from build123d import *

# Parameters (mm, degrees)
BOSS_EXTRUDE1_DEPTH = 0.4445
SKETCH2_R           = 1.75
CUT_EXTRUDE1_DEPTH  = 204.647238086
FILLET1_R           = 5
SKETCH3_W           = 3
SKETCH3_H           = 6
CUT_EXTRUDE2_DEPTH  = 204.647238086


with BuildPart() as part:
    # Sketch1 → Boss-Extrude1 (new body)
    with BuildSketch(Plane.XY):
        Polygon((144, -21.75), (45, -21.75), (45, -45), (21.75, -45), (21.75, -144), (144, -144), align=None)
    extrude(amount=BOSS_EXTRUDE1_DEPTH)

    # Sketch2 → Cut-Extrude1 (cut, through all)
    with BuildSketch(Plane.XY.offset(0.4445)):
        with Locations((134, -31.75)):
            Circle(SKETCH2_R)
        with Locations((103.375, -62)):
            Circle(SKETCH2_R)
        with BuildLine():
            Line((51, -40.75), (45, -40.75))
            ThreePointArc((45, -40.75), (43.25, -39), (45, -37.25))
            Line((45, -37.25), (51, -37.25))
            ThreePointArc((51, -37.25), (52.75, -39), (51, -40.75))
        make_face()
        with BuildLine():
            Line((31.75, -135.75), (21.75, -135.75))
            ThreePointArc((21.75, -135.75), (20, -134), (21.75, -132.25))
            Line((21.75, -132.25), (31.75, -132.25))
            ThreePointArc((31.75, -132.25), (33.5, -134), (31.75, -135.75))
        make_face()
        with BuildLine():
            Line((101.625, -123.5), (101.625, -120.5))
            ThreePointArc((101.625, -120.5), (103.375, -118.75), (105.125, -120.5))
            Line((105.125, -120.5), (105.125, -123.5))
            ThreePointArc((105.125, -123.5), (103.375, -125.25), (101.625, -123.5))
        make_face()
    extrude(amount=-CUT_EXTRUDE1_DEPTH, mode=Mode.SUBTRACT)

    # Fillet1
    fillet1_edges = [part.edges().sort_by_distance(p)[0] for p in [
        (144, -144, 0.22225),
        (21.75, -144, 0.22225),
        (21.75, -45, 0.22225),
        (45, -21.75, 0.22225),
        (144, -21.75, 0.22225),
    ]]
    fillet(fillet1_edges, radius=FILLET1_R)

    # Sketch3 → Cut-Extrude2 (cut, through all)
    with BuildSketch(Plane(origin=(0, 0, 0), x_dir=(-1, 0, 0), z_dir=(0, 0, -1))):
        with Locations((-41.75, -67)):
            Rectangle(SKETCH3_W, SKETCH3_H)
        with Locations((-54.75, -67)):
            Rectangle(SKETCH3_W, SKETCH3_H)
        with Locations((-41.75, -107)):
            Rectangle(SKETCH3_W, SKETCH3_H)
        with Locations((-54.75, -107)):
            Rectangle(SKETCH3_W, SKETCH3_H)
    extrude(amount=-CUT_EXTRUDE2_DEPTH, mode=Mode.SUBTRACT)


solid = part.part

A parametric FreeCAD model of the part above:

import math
import FreeCAD as App
import Part
import Sketcher
from FreeCAD import Vector


def edges_at(feature, points):
    """Names of the edges that pass closest to the given points."""
    edges = feature.Shape.Edges
    near = lambda p: min(range(len(edges)), key=lambda i: edges[i].distToShape(Part.Vertex(*p))[0])
    return sorted({f"Edge{near(p) + 1}" for p in points})


def add_polygon(sketch, points):
    """Adds a closed chain of lines whose ends are joined by coincident constraints."""
    first, n = sketch.GeometryCount, len(points)
    for a, b in zip(points, points[1:] + points[:1]):
        sketch.addGeometry(Part.LineSegment(App.Vector(*a, 0), App.Vector(*b, 0)), False)
    for i in range(n):
        sketch.addConstraint(Sketcher.Constraint("Coincident", first + i, 2, first + (i + 1) % n, 1))

doc = App.newDocument("Part")
body = doc.addObject("PartDesign::Body", "Body")

# Sketch on XY plane
sketch1 = body.newObject("Sketcher::SketchObject", "Sketch")
sketch1.AttachmentSupport = (doc.getObject("XY_Plane"), [""])
sketch1.MapMode = "FlatFace"
add_polygon(sketch1, [(144, -22), (45, -22), (45, -45), (22, -45), (22, -144), (144, -144)])  # lines 0-5
sketch1.addConstraint([
    Sketcher.Constraint("Horizontal", 0),
    Sketcher.Constraint("Vertical", 1),
    Sketcher.Constraint("Horizontal", 2),
    Sketcher.Constraint("Vertical", 3),
    Sketcher.Constraint("Horizontal", 4),
    Sketcher.Constraint("Vertical", 5),
    Sketcher.Constraint("Equal", 2, 1),
    Sketcher.Constraint("Equal", 0, 3),
    Sketcher.Constraint("DistanceX", 0, 2, 0, 1, 99.0),
    Sketcher.Constraint("DistanceX", -1, 1, 0, 2, 45.0),
    Sketcher.Constraint("DistanceY", 1, 2, -1, 1, 45.0),
    Sketcher.Constraint("DistanceX", 2, 2, 2, 1, 23.25),
])
pad1 = body.newObject("PartDesign::Pad", "Pad")
pad1.Profile = sketch1
pad1.Length = 0.4445

# Sketch on XY plane
sketch2 = body.newObject("Sketcher::SketchObject", "Sketch001")
sketch2.AttachmentSupport = (doc.getObject("XY_Plane"), [""])
sketch2.MapMode = "FlatFace"
sketch2.AttachmentOffset = App.Placement(Vector(0, 0, 0.4445), App.Rotation())
sketch2.addGeometry([
    Part.Circle(Vector(134, -31.8, 0), Vector(0, 0, 1), 1.8),  # 0
    Part.Circle(Vector(103.4, -62, 0), Vector(0, 0, 1), 1.8),  # 1
    Part.LineSegment(Vector(45, -40.8, 0), Vector(51, -40.8, 0)),  # 2
    Part.ArcOfCircle(Part.Circle(Vector(51, -39, 0), Vector(0, 0, 1), 1.8), math.radians(-90), math.radians(90)),  # 3
    Part.LineSegment(Vector(51, -37.2, 0), Vector(45, -37.2, 0)),  # 4
    Part.ArcOfCircle(Part.Circle(Vector(45, -39, 0), Vector(0, 0, 1), 1.8), math.radians(90), math.radians(270)),  # 5
    Part.LineSegment(Vector(21.8, -135.8, 0), Vector(31.8, -135.8, 0)),  # 6
    Part.ArcOfCircle(Part.Circle(Vector(31.8, -134, 0), Vector(0, 0, 1), 1.8), math.radians(-90), math.radians(90)),  # 7
    Part.LineSegment(Vector(31.8, -132.2, 0), Vector(21.8, -132.2, 0)),  # 8
    Part.ArcOfCircle(Part.Circle(Vector(21.8, -134, 0), Vector(0, 0, 1), 1.8), math.radians(90), math.radians(270)),  # 9
    Part.LineSegment(Vector(101.6, -120.5, 0), Vector(101.6, -123.5, 0)),  # 10
    Part.ArcOfCircle(Part.Circle(Vector(103.4, -123.5, 0), Vector(0, 0, 1), 1.8), math.radians(180), math.radians(360)),  # 11
    Part.LineSegment(Vector(105.1, -123.5, 0), Vector(105.1, -120.5, 0)),  # 12
    Part.ArcOfCircle(Part.Circle(Vector(103.4, -120.5, 0), Vector(0, 0, 1), 1.8), math.radians(0), math.radians(180)),  # 13
], False)
sketch2.addConstraint([
    Sketcher.Constraint("Tangent", 2, 2, 3, 1),
    Sketcher.Constraint("Tangent", 3, 2, 4, 1),
    Sketcher.Constraint("Tangent", 4, 2, 5, 1),
    Sketcher.Constraint("Tangent", 5, 2, 2, 1),
    Sketcher.Constraint("Tangent", 6, 2, 7, 1),
    Sketcher.Constraint("Tangent", 7, 2, 8, 1),
    Sketcher.Constraint("Tangent", 8, 2, 9, 1),
    Sketcher.Constraint("Tangent", 9, 2, 6, 1),
    Sketcher.Constraint("Tangent", 10, 2, 11, 1),
    Sketcher.Constraint("Tangent", 11, 2, 12, 1),
    Sketcher.Constraint("Tangent", 12, 2, 13, 1),
    Sketcher.Constraint("Tangent", 13, 2, 10, 1),
    Sketcher.Constraint("Horizontal", 2),
    Sketcher.Constraint("Horizontal", 4),
    Sketcher.Constraint("Horizontal", 6),
    Sketcher.Constraint("Horizontal", 8),
    Sketcher.Constraint("Vertical", 10),
    Sketcher.Constraint("Vertical", 12),
    Sketcher.Constraint("Equal", 0, 1),
    Sketcher.Constraint("Equal", 1, 3),
    Sketcher.Constraint("Equal", 5, 7),
    Sketcher.Constraint("Equal", 9, 11),
    Sketcher.Constraint("Vertical", 1, 3, 11, 3),
    Sketcher.Constraint("Diameter", 0, 3.5),
    Sketcher.Constraint("DistanceX", 2, 1, 2, 2, 6.0),
    Sketcher.Constraint("DistanceX", 6, 1, 6, 2, 10.0),
    Sketcher.Constraint("DistanceY", 10, 2, 10, 1, 3.0),
    Sketcher.Constraint("DistanceX", -1, 1, 0, 3, 134.0),
    Sketcher.Constraint("DistanceY", 1, 3, -1, 1, 62.0),
    Sketcher.Constraint("DistanceX", -1, 1, 3, 3, 51.0),
    Sketcher.Constraint("DistanceY", 3, 3, -1, 1, 39.0),
    Sketcher.Constraint("DistanceY", 7, 3, -1, 1, 134.0),
    Sketcher.Constraint("DistanceY", 2, 2, 0, 3, 9.0),
    Sketcher.Constraint("DistanceY", 11, 3, -1, 1, 123.5),
    Sketcher.Constraint("DistanceX", -1, 1, 7, 3, 31.75),
    Sketcher.Constraint("DistanceX", -1, 1, 1, 3, 103.375),
])
pocket1 = body.newObject("PartDesign::Pocket", "Pocket")
pocket1.Profile = sketch2
pocket1.Type = "ThroughAll"
doc.recompute()

fillet = body.newObject("PartDesign::Fillet", "Fillet")
fillet.Base = (pocket1, edges_at(pocket1, [
    (144, -144, 0.222),
    (21.75, -144, 0.222),
    (21.75, -45, 0.222),
    (45, -21.75, 0.222),
    (144, -21.75, 0.222),
]))
fillet.Radius = 5

# Sketch on XY plane
sketch3 = body.newObject("Sketcher::SketchObject", "Sketch002")
sketch3.AttachmentSupport = (doc.getObject("XY_Plane"), [""])
sketch3.MapMode = "FlatFace"
add_polygon(sketch3, [(43.2, -64), (43.2, -70), (40.2, -70), (40.2, -64)])  # lines 0-3
add_polygon(sketch3, [(56.2, -64), (56.2, -70), (53.2, -70), (53.2, -64)])  # lines 4-7
add_polygon(sketch3, [(43.2, -104), (43.2, -110), (40.2, -110), (40.2, -104)])  # lines 8-11
add_polygon(sketch3, [(56.2, -104), (56.2, -110), (53.2, -110), (53.2, -104)])  # lines 12-15
sketch3.addConstraint([
    Sketcher.Constraint("Vertical", 0),
    Sketcher.Constraint("Horizontal", 1),
    Sketcher.Constraint("Vertical", 2),
    Sketcher.Constraint("Horizontal", 3),
    Sketcher.Constraint("Vertical", 4),
    Sketcher.Constraint("Horizontal", 5),
    Sketcher.Constraint("Vertical", 6),
    Sketcher.Constraint("Horizontal", 7),
    Sketcher.Constraint("Vertical", 8),
    Sketcher.Constraint("Horizontal", 9),
    Sketcher.Constraint("Vertical", 10),
    Sketcher.Constraint("Horizontal", 11),
    Sketcher.Constraint("Vertical", 12),
    Sketcher.Constraint("Horizontal", 13),
    Sketcher.Constraint("Vertical", 14),
    Sketcher.Constraint("Horizontal", 15),
    Sketcher.Constraint("Horizontal", 1, 2, 4, 2),
    Sketcher.Constraint("Horizontal", 3, 2, 6, 2),
    Sketcher.Constraint("Horizontal", 9, 2, 12, 2),
    Sketcher.Constraint("Horizontal", 11, 2, 14, 2),
    Sketcher.Constraint("Vertical", 3, 2, 8, 2),
    Sketcher.Constraint("Vertical", 2, 2, 9, 2),
    Sketcher.Constraint("Vertical", 7, 2, 12, 2),
    Sketcher.Constraint("Vertical", 6, 2, 13, 2),
    Sketcher.Constraint("Equal", 3, 5),
    Sketcher.Constraint("Equal", 6, 8),
    Sketcher.Constraint("DistanceX", 1, 2, 1, 1, 3.0),
    Sketcher.Constraint("DistanceY", 0, 2, 0, 1, 6.0),
    Sketcher.Constraint("DistanceY", 0, 2, -1, 1, 70.0),
    Sketcher.Constraint("DistanceY", 8, 2, -1, 1, 110.0),
    Sketcher.Constraint("DistanceX", 0, 2, 4, 2, 13.0),
    Sketcher.Constraint("DistanceX", -1, 1, 0, 2, 43.25),
])
pocket2 = body.newObject("PartDesign::Pocket", "Pocket001")
pocket2.Profile = sketch3
pocket2.Type = "ThroughAll"
pocket2.Reversed = True

doc.recompute()
